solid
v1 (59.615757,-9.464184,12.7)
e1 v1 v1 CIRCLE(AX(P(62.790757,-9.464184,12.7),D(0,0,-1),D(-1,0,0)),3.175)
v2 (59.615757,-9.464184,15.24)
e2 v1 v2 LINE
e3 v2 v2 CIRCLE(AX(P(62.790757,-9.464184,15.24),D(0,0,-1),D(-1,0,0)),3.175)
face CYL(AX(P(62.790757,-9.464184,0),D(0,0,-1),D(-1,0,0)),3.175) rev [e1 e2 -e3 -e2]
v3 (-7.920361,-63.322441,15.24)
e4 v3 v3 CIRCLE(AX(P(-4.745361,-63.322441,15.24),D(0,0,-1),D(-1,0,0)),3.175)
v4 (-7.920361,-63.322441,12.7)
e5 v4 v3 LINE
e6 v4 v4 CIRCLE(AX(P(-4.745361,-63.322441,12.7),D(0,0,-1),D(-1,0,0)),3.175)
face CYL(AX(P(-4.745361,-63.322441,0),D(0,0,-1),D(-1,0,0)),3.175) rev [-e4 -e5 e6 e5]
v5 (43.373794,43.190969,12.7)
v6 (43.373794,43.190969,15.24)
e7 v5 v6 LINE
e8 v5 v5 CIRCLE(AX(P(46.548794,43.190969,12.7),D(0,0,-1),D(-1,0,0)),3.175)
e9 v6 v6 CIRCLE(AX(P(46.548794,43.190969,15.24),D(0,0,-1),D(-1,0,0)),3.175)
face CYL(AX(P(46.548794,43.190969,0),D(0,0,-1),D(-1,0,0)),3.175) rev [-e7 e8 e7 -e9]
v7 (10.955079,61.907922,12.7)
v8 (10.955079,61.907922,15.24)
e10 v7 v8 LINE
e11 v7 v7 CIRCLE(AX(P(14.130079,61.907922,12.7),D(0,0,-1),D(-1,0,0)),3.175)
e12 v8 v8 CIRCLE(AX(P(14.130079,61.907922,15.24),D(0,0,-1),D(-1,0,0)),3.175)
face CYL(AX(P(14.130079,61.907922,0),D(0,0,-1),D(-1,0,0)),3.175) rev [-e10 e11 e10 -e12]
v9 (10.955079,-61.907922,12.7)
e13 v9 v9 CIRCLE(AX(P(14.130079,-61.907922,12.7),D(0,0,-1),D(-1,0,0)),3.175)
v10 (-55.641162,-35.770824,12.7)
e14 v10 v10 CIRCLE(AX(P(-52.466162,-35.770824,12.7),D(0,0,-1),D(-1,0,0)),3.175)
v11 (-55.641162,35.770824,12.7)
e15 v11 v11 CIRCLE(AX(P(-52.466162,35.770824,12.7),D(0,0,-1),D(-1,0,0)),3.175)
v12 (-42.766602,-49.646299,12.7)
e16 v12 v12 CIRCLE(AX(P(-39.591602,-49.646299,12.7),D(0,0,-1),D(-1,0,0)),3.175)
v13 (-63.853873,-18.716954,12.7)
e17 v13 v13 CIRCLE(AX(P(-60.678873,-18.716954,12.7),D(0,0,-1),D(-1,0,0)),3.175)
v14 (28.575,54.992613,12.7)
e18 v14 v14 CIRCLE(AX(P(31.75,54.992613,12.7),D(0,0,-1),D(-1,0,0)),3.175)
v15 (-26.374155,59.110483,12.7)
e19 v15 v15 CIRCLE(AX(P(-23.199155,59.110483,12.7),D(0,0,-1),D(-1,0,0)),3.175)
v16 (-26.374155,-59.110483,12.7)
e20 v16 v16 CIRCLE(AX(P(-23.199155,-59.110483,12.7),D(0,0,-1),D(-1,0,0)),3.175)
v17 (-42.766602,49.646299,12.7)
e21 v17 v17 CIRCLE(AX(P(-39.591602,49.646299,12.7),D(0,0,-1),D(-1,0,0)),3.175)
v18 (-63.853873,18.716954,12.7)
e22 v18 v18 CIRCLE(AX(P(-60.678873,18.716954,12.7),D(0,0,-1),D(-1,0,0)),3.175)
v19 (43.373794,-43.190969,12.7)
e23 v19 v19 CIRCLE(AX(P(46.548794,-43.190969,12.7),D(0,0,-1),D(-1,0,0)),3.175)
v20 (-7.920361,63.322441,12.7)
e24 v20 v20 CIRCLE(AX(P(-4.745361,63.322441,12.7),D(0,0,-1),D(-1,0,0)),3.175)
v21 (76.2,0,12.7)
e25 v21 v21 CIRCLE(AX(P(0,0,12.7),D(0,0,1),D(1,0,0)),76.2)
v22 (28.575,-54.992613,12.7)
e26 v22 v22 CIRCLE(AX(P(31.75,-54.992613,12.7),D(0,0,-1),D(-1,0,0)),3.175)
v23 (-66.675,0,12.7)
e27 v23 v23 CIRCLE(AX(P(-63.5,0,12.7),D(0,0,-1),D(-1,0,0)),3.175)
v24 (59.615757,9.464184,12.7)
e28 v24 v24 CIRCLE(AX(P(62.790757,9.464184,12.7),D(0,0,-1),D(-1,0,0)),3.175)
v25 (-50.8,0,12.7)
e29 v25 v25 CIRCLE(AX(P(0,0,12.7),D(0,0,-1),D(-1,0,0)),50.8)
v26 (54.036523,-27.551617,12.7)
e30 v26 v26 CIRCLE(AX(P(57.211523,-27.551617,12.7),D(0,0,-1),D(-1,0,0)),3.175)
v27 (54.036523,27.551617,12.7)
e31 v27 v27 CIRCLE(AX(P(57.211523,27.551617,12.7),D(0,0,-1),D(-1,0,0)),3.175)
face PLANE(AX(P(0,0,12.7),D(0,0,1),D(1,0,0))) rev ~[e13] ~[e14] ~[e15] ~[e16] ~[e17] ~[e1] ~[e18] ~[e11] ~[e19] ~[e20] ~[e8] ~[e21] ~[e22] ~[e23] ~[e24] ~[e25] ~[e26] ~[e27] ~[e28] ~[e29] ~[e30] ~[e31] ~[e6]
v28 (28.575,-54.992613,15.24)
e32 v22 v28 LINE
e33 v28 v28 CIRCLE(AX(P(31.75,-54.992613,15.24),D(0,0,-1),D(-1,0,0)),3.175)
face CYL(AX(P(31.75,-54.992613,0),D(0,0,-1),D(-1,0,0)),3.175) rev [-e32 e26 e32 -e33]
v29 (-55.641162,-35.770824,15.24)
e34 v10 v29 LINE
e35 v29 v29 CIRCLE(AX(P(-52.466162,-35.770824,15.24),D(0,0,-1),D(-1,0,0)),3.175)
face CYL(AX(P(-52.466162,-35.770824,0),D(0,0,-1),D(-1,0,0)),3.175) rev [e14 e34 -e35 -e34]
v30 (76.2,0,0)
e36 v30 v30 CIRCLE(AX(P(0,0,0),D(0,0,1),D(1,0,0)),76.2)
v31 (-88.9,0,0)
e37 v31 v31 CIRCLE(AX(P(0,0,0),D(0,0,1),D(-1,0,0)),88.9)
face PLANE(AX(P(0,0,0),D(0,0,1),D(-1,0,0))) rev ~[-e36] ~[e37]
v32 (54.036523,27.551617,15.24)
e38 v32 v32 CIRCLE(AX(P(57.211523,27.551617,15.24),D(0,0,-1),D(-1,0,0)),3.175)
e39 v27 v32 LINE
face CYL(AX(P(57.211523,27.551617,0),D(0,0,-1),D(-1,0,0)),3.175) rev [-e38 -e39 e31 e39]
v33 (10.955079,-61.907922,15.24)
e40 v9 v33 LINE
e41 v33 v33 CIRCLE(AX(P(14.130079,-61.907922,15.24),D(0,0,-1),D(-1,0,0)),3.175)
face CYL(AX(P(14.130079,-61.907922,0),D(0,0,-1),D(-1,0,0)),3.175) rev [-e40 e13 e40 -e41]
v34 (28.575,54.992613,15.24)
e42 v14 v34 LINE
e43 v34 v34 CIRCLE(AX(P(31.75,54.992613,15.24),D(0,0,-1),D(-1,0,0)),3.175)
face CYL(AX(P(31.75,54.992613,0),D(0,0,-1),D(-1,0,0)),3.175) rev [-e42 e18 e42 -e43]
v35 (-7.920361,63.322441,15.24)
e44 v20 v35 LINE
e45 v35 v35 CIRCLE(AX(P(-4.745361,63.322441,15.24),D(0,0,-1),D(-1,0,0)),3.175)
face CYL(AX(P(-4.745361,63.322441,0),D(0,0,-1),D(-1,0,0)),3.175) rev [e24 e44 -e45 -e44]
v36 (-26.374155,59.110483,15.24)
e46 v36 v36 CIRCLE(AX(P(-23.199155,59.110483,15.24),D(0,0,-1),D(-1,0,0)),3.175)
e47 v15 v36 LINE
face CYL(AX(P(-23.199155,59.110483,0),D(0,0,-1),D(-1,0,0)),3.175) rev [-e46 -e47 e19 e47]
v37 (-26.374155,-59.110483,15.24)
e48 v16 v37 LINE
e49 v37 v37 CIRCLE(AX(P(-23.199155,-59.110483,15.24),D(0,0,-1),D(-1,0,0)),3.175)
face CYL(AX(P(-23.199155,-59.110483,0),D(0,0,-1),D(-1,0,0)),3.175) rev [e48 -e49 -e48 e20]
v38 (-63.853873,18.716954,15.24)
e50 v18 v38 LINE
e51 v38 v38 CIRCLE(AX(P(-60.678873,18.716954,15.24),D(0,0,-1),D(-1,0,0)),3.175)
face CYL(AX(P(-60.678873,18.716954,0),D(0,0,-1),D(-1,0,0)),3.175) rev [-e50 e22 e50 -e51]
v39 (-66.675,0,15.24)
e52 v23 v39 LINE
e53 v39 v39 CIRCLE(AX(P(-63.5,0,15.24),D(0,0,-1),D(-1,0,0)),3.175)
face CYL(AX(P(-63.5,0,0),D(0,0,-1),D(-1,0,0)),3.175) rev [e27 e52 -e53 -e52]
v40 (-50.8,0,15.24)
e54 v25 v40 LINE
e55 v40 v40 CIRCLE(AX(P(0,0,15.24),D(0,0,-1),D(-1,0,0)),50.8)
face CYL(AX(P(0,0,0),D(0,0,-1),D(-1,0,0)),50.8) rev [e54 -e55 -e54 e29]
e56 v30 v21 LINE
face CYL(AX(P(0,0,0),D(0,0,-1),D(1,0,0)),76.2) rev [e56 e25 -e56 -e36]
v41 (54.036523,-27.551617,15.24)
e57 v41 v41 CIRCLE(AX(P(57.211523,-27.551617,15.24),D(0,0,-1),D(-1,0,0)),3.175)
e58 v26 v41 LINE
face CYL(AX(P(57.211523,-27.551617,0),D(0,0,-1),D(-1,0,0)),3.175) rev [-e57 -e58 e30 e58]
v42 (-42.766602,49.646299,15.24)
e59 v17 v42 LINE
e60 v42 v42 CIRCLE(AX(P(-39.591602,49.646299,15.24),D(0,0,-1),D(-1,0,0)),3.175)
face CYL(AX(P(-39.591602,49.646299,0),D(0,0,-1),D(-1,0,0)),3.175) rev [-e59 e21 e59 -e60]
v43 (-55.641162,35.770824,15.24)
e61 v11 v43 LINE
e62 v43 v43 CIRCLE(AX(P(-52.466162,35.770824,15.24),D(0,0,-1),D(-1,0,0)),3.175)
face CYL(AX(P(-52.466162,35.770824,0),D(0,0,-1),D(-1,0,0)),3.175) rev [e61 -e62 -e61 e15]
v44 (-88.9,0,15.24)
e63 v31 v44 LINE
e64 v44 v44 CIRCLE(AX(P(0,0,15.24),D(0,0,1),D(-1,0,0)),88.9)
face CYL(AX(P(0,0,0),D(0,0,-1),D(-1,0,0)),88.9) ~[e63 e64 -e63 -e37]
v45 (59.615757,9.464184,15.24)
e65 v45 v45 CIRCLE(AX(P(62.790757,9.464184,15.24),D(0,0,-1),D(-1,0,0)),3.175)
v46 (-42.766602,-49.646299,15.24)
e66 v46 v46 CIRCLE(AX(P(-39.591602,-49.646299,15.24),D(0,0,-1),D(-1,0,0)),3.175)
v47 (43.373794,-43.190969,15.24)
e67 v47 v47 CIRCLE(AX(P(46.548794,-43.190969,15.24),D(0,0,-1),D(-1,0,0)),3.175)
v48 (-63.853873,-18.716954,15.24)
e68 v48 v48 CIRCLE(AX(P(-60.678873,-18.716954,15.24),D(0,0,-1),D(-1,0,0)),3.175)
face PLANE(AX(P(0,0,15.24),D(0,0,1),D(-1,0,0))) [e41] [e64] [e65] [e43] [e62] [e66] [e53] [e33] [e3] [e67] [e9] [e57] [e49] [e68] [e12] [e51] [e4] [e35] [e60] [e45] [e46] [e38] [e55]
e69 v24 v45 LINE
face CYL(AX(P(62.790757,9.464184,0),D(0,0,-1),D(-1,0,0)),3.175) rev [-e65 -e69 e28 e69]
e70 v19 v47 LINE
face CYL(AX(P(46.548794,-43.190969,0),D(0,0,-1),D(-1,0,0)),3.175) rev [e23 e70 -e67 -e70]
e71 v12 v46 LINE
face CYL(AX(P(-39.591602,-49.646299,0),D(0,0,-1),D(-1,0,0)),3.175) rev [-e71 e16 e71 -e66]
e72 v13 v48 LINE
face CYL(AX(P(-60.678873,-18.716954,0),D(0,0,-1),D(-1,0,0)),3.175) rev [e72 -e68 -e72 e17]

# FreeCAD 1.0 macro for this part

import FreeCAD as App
import Part
import Sketcher
Q = App.Units.Quantity

doc = App.newDocument("Part")
body = doc.addObject("PartDesign::Body", "Body")

# Sketch on XY plane
sketch1 = body.newObject("Sketcher::SketchObject", "Sketch")
sketch1.AttachmentSupport = (doc.getObject("XY_Plane"), [""])
sketch1.MapMode = "FlatFace"
sketch1.addGeometry(Part.Circle(App.Vector(0, 0, 0), App.Vector(0, 0, 1), 89), False)
sketch1.addConstraint(Sketcher.Constraint("Coincident", 0, 3, -1, 1))
sketch1.addConstraint(Sketcher.Constraint("Diameter", 0, Q("7 in")))
pad1 = body.newObject("PartDesign::Pad", "Pad")
pad1.Profile = sketch1
pad1.Length = Q("0.6 in")

# Sketch on XY plane
sketch2 = body.newObject("Sketcher::SketchObject", "Sketch001")
sketch2.AttachmentSupport = (doc.getObject("XY_Plane"), [""])
sketch2.MapMode = "FlatFace"
sketch2.addGeometry(Part.Circle(App.Vector(0, 0, 0), App.Vector(0, 0, 1), 76), False)
sketch2.addGeometry(Part.Circle(App.Vector(0, 0, 0), App.Vector(0, 0, 1), 51), False)
sketch2.addConstraint(Sketcher.Constraint("Coincident", 0, 3, -1, 1))
sketch2.addConstraint(Sketcher.Constraint("Coincident", 1, 3, -1, 1))
sketch2.addConstraint(Sketcher.Constraint("Diameter", 0, Q("6 in")))
sketch2.addConstraint(Sketcher.Constraint("Diameter", 1, Q("4 in")))
pocket1 = body.newObject("PartDesign::Pocket", "Pocket")
pocket1.Profile = sketch2
pocket1.Length = Q("0.5 in")
pocket1.Reversed = True

# Sketch on XY plane
sketch3 = body.newObject("Sketcher::SketchObject", "Sketch002")
sketch3.AttachmentSupport = (doc.getObject("XY_Plane"), [""])
sketch3.MapMode = "FlatFace"
sketch3.addGeometry(Part.Circle(App.Vector(-63.5, 0, 0), App.Vector(0, 0, 1), 3.2), False)
sketch3.addGeometry(Part.Circle(App.Vector(0, 0, 0), App.Vector(0, 0, 1), 50.8), False)
sketch3.addGeometry(Part.Circle(App.Vector(-60.7, 18.7, 0), App.Vector(0, 0, 1), 3.2), False)
sketch3.addGeometry(Part.Circle(App.Vector(-52.5, 35.8, 0), App.Vector(0, 0, 1), 3.2), False)
sketch3.addGeometry(Part.Circle(App.Vector(-39.6, 49.6, 0), App.Vector(0, 0, 1), 3.2), False)
sketch3.addGeometry(Part.Circle(App.Vector(-23.2, 59.1, 0), App.Vector(0, 0, 1), 3.2), False)
sketch3.addGeometry(Part.Circle(App.Vector(-4.7, 63.3, 0), App.Vector(0, 0, 1), 3.2), False)
sketch3.addGeometry(Part.Circle(App.Vector(14.1, 61.9, 0), App.Vector(0, 0, 1), 3.2), False)
sketch3.addGeometry(Part.Circle(App.Vector(31.8, 55, 0), App.Vector(0, 0, 1), 3.2), False)
sketch3.addGeometry(Part.Circle(App.Vector(46.5, 43.2, 0), App.Vector(0, 0, 1), 3.2), False)
sketch3.addGeometry(Part.Circle(App.Vector(57.2, 27.6, 0), App.Vector(0, 0, 1), 3.2), False)
sketch3.addGeometry(Part.Circle(App.Vector(62.8, 9.5, 0), App.Vector(0, 0, 1), 3.2), False)
sketch3.addGeometry(Part.Circle(App.Vector(62.8, -9.5, 0), App.Vector(0, 0, 1), 3.2), False)
sketch3.addGeometry(Part.Circle(App.Vector(57.2, -27.6, 0), App.Vector(0, 0, 1), 3.2), False)
sketch3.addGeometry(Part.Circle(App.Vector(46.5, -43.2, 0), App.Vector(0, 0, 1), 3.2), False)
sketch3.addGeometry(Part.Circle(App.Vector(31.8, -55, 0), App.Vector(0, 0, 1), 3.2), False)
sketch3.addGeometry(Part.Circle(App.Vector(14.1, -61.9, 0), App.Vector(0, 0, 1), 3.2), False)
sketch3.addGeometry(Part.Circle(App.Vector(-4.7, -63.3, 0), App.Vector(0, 0, 1), 3.2), False)
sketch3.addGeometry(Part.Circle(App.Vector(-23.2, -59.1, 0), App.Vector(0, 0, 1), 3.2), False)
sketch3.addGeometry(Part.Circle(App.Vector(-39.6, -49.6, 0), App.Vector(0, 0, 1), 3.2), False)
sketch3.addGeometry(Part.Circle(App.Vector(-52.5, -35.8, 0), App.Vector(0, 0, 1), 3.2), False)
sketch3.addGeometry(Part.Circle(App.Vector(-60.7, -18.7, 0), App.Vector(0, 0, 1), 3.2), False)
sketch3.addConstraint(Sketcher.Constraint("Coincident", 1, 3, -1, 1))
sketch3.addConstraint(Sketcher.Constraint("Equal", 0, 2))
sketch3.addConstraint(Sketcher.Constraint("Equal", 2, 3))
sketch3.addConstraint(Sketcher.Constraint("Equal", 3, 4))
sketch3.addConstraint(Sketcher.Constraint("Equal", 4, 5))
sketch3.addConstraint(Sketcher.Constraint("Equal", 5, 6))
sketch3.addConstraint(Sketcher.Constraint("Equal", 6, 7))
sketch3.addConstraint(Sketcher.Constraint("Equal", 7, 8))
sketch3.addConstraint(Sketcher.Constraint("Equal", 8, 9))
sketch3.addConstraint(Sketcher.Constraint("Equal", 9, 10))
sketch3.addConstraint(Sketcher.Constraint("Equal", 10, 11))
sketch3.addConstraint(Sketcher.Constraint("Equal", 11, 12))
sketch3.addConstraint(Sketcher.Constraint("Equal", 12, 13))
sketch3.addConstraint(Sketcher.Constraint("Equal", 13, 14))
sketch3.addConstraint(Sketcher.Constraint("Equal", 14, 15))
sketch3.addConstraint(Sketcher.Constraint("Equal", 15, 16))
sketch3.addConstraint(Sketcher.Constraint("Equal", 16, 17))
sketch3.addConstraint(Sketcher.Constraint("Equal", 17, 18))
sketch3.addConstraint(Sketcher.Constraint("Equal", 18, 19))
sketch3.addConstraint(Sketcher.Constraint("Equal", 19, 20))
sketch3.addConstraint(Sketcher.Constraint("Equal", 20, 21))
sketch3.addConstraint(Sketcher.Constraint("Symmetric", 11, 3, 12, 3, -1))
sketch3.addConstraint(Sketcher.Constraint("Symmetric", 10, 3, 13, 3, -1))
sketch3.addConstraint(Sketcher.Constraint("Symmetric", 9, 3, 14, 3, -1))
sketch3.addConstraint(Sketcher.Constraint("Symmetric", 8, 3, 15, 3, -1))
sketch3.addConstraint(Sketcher.Constraint("Symmetric", 7, 3, 16, 3, -1))
sketch3.addConstraint(Sketcher.Constraint("Symmetric", 6, 3, 17, 3, -1))
sketch3.addConstraint(Sketcher.Constraint("Symmetric", 5, 3, 18, 3, -1))
sketch3.addConstraint(Sketcher.Constraint("Symmetric", 4, 3, 19, 3, -1))
sketch3.addConstraint(Sketcher.Constraint("Symmetric", 3, 3, 20, 3, -1))
sketch3.addConstraint(Sketcher.Constraint("Symmetric", 2, 3, 21, 3, -1))
sketch3.addConstraint(Sketcher.Constraint("PointOnObject", 0, 3, -1))
sketch3.addConstraint(Sketcher.Constraint("Diameter", 1, Q("4 in")))
sketch3.addConstraint(Sketcher.Constraint("Diameter", 0, Q("0.25 in")))
sketch3.addConstraint(Sketcher.Constraint("DistanceX", 0, 3, -1, 1, Q("2.5 in")))
sketch3.addConstraint(Sketcher.Constraint("DistanceX", -1, 1, 8, 3, Q("1.25 in")))
sketch3.addConstraint(Sketcher.Constraint("DistanceY", -1, 1, 3, 3, Q("1.4083001 in")))
sketch3.addConstraint(Sketcher.Constraint("DistanceY", 10, 3, 6, 3, Q("1.4083001 in")))
sketch3.addConstraint(Sketcher.Constraint("DistanceY", -1, 1, 4, 3, 49.646299))
sketch3.addConstraint(Sketcher.Constraint("DistanceX", 3, 3, 6, 3, 47.720801))
sketch3.addConstraint(Sketcher.Constraint("DistanceY", 3, 3, 7, 3, 26.137099))
sketch3.addConstraint(Sketcher.Constraint("DistanceY", 12, 3, 10, 3, 37.015801))
sketch3.addConstraint(Sketcher.Constraint("DistanceX", 6, 3, -1, 1, 4.745361))
sketch3.addConstraint(Sketcher.Constraint("DistanceY", -1, 1, 6, 3, 63.322441))
sketch3.addConstraint(Sketcher.Constraint("DistanceX", -1, 1, 7, 3, 14.130079))
sketch3.addConstraint(Sketcher.Constraint("DistanceY", -1, 1, 9, 3, 43.190969))
sketch3.addConstraint(Sketcher.Constraint("DistanceX", 2, 3, 3, 3, 8.212711))
sketch3.addConstraint(Sketcher.Constraint("DistanceY", 2, 3, 3, 3, 17.05387))
sketch3.addConstraint(Sketcher.Constraint("DistanceX", 3, 3, 4, 3, 12.87456))
sketch3.addConstraint(Sketcher.Constraint("DistanceY", 3, 3, 5, 3, 23.339659))
sketch3.addConstraint(Sketcher.Constraint("DistanceX", 2, 3, 5, 3, 37.479718))
sketch3.addConstraint(Sketcher.Constraint("DistanceY", 8, 3, 7, 3, 6.915309))
sketch3.addConstraint(Sketcher.Constraint("DistanceX", 5, 3, 9, 3, 69.747949))
sketch3.addConstraint(Sketcher.Constraint("DistanceX", 9, 3, 10, 3, 10.662729))
sketch3.addConstraint(Sketcher.Constraint("DistanceX", 7, 3, 11, 3, 48.660678))
pocket2 = body.newObject("PartDesign::Pocket", "Pocket001")
pocket2.Profile = sketch3
pocket2.Type = "ThroughAll"
pocket2.Reversed = True

doc.recompute()
